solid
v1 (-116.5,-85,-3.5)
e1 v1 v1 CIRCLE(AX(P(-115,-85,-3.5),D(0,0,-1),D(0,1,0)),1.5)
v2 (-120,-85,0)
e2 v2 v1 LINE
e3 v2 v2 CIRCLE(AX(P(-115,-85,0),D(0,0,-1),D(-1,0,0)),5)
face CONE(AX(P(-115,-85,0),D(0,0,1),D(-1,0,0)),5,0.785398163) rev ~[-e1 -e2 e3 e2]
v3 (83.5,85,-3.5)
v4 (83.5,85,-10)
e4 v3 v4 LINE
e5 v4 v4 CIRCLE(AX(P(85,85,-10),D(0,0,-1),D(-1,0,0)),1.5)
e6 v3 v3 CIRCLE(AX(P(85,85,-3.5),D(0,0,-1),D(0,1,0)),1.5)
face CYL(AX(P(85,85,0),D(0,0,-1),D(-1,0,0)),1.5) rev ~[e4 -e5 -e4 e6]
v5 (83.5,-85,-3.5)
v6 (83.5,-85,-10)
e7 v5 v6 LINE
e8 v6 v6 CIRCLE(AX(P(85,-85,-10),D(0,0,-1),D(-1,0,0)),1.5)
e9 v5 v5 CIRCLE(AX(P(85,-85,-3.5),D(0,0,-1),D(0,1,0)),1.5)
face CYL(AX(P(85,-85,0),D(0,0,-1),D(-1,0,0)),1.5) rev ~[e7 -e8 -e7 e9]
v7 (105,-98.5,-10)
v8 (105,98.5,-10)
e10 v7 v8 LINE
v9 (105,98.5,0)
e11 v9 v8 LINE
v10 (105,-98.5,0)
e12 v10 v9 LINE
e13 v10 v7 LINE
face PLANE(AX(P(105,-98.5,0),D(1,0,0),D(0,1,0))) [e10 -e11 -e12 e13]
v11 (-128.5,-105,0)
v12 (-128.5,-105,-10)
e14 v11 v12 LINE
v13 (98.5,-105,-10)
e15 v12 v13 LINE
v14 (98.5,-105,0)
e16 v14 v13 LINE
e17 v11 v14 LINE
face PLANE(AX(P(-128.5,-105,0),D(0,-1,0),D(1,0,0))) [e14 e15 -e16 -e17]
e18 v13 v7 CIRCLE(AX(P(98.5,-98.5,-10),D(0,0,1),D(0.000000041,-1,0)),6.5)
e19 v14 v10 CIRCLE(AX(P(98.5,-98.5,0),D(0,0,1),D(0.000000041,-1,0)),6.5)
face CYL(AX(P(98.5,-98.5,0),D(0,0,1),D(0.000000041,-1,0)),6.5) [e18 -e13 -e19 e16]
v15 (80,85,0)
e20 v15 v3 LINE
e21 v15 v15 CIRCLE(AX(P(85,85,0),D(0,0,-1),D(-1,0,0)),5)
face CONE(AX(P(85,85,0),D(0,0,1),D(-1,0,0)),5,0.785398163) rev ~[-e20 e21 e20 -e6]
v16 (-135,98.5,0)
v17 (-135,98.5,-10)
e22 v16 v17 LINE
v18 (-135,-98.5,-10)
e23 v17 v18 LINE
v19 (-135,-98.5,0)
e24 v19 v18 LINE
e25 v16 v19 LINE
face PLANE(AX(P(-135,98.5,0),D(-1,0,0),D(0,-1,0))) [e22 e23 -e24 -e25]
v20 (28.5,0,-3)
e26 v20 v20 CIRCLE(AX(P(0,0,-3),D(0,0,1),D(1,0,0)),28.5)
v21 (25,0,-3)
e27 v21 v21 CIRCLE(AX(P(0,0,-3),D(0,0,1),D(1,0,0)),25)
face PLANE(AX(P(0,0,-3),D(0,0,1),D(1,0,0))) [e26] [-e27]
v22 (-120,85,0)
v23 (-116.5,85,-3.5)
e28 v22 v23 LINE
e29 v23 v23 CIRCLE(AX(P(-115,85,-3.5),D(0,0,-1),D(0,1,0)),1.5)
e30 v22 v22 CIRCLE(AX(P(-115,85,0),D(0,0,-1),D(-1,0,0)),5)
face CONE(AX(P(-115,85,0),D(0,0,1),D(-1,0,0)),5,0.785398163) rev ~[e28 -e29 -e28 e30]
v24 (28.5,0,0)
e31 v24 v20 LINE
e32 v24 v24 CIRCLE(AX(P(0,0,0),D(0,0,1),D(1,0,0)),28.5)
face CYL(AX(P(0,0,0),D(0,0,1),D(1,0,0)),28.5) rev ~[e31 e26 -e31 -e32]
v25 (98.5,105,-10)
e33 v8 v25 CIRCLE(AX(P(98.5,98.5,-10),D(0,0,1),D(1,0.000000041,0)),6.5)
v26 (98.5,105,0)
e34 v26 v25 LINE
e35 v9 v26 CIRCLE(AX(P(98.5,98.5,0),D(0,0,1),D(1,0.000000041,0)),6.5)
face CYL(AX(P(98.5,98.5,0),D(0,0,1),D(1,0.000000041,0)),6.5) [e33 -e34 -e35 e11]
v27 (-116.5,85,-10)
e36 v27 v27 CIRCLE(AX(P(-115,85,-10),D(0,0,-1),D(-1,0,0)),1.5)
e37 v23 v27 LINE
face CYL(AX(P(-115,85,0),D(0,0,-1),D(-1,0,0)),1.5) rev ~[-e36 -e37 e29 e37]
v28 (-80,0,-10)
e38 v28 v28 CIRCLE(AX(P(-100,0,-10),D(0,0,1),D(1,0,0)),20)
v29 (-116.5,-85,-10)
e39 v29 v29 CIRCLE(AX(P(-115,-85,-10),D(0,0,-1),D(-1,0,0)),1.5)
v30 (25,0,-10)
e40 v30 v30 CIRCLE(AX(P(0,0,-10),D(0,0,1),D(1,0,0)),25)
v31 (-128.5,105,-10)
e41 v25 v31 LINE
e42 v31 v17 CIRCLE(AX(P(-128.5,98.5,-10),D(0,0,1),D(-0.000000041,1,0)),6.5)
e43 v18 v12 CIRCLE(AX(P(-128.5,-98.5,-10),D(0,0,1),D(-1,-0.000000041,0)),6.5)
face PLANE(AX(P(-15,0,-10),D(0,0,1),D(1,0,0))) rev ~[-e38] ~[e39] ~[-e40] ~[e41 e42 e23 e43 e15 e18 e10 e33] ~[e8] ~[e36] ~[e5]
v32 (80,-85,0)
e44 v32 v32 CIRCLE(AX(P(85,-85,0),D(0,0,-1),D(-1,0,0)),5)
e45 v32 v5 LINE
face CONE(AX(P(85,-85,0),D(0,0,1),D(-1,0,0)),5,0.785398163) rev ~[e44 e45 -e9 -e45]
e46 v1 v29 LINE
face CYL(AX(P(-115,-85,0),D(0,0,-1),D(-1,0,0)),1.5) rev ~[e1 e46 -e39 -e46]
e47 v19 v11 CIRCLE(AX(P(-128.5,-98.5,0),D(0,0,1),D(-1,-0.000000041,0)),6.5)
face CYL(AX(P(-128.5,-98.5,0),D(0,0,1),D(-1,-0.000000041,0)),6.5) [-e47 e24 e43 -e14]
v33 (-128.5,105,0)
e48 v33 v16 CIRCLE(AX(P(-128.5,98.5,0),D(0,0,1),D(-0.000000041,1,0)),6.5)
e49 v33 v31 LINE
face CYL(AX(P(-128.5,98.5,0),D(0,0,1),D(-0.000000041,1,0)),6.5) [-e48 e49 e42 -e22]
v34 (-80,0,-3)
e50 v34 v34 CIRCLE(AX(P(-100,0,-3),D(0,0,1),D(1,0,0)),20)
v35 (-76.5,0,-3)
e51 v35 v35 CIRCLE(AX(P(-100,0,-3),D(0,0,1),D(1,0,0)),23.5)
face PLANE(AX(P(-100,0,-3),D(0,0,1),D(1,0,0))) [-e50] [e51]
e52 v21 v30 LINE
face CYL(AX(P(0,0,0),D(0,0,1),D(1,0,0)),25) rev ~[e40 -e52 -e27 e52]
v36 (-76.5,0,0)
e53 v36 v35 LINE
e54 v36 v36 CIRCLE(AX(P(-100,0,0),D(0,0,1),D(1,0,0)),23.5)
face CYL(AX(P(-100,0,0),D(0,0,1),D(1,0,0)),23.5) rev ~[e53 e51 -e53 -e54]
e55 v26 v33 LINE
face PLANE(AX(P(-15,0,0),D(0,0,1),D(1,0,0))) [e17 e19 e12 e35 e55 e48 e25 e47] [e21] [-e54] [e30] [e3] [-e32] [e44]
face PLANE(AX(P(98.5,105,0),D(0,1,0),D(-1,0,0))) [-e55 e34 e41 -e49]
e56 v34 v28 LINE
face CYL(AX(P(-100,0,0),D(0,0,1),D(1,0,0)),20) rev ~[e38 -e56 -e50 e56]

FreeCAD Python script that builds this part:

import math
import FreeCAD as App
import Part
import Sketcher
Q = App.Units.Quantity

doc = App.newDocument("Part")
body = doc.addObject("PartDesign::Body", "Body")

# Sketch on XY plane
sketch1 = body.newObject("Sketcher::SketchObject", "Sketch")
sketch1.AttachmentSupport = (doc.getObject("XY_Plane"), [""])
sketch1.MapMode = "FlatFace"
sketch1.addGeometry([
    Part.LineSegment(App.Vector(98.5, 105, 0), App.Vector(-128.5, 105, 0)),  # 0
    Part.ArcOfCircle(Part.Circle(App.Vector(-128.5, 98.5, 0), App.Vector(0, 0, 1), 6.5), math.radians(90.000002), math.radians(179.999998)),  # 1
    Part.LineSegment(App.Vector(-135, 98.5, 0), App.Vector(-135, -98.5, 0)),  # 2
    Part.ArcOfCircle(Part.Circle(App.Vector(-128.5, -98.5, 0), App.Vector(0, 0, 1), 6.5), math.radians(-179.999998), math.radians(-90.000002)),  # 3
    Part.LineSegment(App.Vector(-128.5, -105, 0), App.Vector(98.5, -105, 0)),  # 4
    Part.ArcOfCircle(Part.Circle(App.Vector(98.5, -98.5, 0), App.Vector(0, 0, 1), 6.5), math.radians(-89.999998), math.radians(-0.000002)),  # 5
    Part.LineSegment(App.Vector(105, -98.5, 0), App.Vector(105, 98.5, 0)),  # 6
    Part.ArcOfCircle(Part.Circle(App.Vector(98.5, 98.5, 0), App.Vector(0, 0, 1), 6.5), math.radians(0.000002), math.radians(89.999998)),  # 7
    Part.Circle(App.Vector(-100, 0, 0), App.Vector(0, 0, 1), 20),  # 8
    Part.Circle(App.Vector(0, 0, 0), App.Vector(0, 0, 1), 25),  # 9
], False)
sketch1.addConstraint([
    Sketcher.Constraint("Tangent", 0, 2, 1, 1),
    Sketcher.Constraint("Tangent", 1, 2, 2, 1),
    Sketcher.Constraint("Tangent", 2, 2, 3, 1),
    Sketcher.Constraint("Tangent", 3, 2, 4, 1),
    Sketcher.Constraint("Tangent", 4, 2, 5, 1),
    Sketcher.Constraint("Tangent", 5, 2, 6, 1),
    Sketcher.Constraint("Tangent", 6, 2, 7, 1),
    Sketcher.Constraint("Tangent", 7, 2, 0, 1),
    Sketcher.Constraint("Horizontal", 0),
    Sketcher.Constraint("Vertical", 2),
    Sketcher.Constraint("Horizontal", 4),
    Sketcher.Constraint("Vertical", 6),
    Sketcher.Constraint("Coincident", 9, 3, -1, 1),
    Sketcher.Constraint("Equal", 1, 3),
    Sketcher.Constraint("Equal", 3, 5),
    Sketcher.Constraint("Equal", 5, 7),
    Sketcher.Constraint("PointOnObject", 8, 3, -1),
    Sketcher.Constraint("Diameter", 8, Q("40 mm")),
    Sketcher.Constraint("Diameter", 9, Q("50 mm")),
    Sketcher.Constraint("Radius", 1, Q("6.5 mm")),
    Sketcher.Constraint("DistanceX", 0, 2, 0, 1, Q("227 mm")),
    Sketcher.Constraint("DistanceY", 2, 2, 2, 1, Q("197 mm")),
    Sketcher.Constraint("DistanceX", 8, 3, -1, 1, Q("100 mm")),
    Sketcher.Constraint("DistanceY", -1, 1, 0, 2, Q("105 mm")),
    Sketcher.Constraint("DistanceX", 1, 2, -1, 1, Q("135 mm")),
])
pad1 = body.newObject("PartDesign::Pad", "Pad")
pad1.Profile = sketch1
pad1.Length = 10
pad1.Reversed = True

# Sketch on XY plane
sketch2 = body.newObject("Sketcher::SketchObject", "Sketch001")
sketch2.AttachmentSupport = (doc.getObject("XY_Plane"), [""])
sketch2.MapMode = "FlatFace"
sketch2.addGeometry([
    Part.Circle(App.Vector(-100, 0, 0), App.Vector(0, 0, 1), 23.5),
    Part.Circle(App.Vector(-100, 0, 0), App.Vector(0, 0, 1), 20),
    Part.Circle(App.Vector(0, 0, 0), App.Vector(0, 0, 1), 28.5),
    Part.Circle(App.Vector(0, 0, 0), App.Vector(0, 0, 1), 25),
], False)
sketch2.addConstraint([
    Sketcher.Constraint("Coincident", 2, 3, -1, 1),
    Sketcher.Constraint("Coincident", 3, 3, -1, 1),
    Sketcher.Constraint("Coincident", 1, 3, 0, 3),
    Sketcher.Constraint("PointOnObject", 0, 3, -1),
    Sketcher.Constraint("Diameter", 0, Q("47 mm")),
    Sketcher.Constraint("Diameter", 1, Q("40 mm")),
    Sketcher.Constraint("Diameter", 2, Q("57 mm")),
    Sketcher.Constraint("Diameter", 3, Q("50 mm")),
    Sketcher.Constraint("DistanceX", 0, 3, -1, 1, Q("100 mm")),
])
pocket1 = body.newObject("PartDesign::Pocket", "Pocket")
pocket1.Profile = sketch2
pocket1.Length = 3

# Sketch on XY plane
sketch3 = body.newObject("Sketcher::SketchObject", "Sketch002")
sketch3.AttachmentSupport = (doc.getObject("XY_Plane"), [""])
sketch3.MapMode = "FlatFace"
sketch3.addGeometry([
    Part.Circle(App.Vector(-115, 85, 0), App.Vector(0, 0, 1), 1.5),
    Part.Circle(App.Vector(85, 85, 0), App.Vector(0, 0, 1), 1.5),
    Part.Circle(App.Vector(85, -85, 0), App.Vector(0, 0, 1), 1.5),
    Part.Circle(App.Vector(-115, -85, 0), App.Vector(0, 0, 1), 1.5),
], False)
sketch3.addConstraint([
    Sketcher.Constraint("Equal", 0, 1),
    Sketcher.Constraint("Equal", 1, 2),
    Sketcher.Constraint("Equal", 2, 3),
    Sketcher.Constraint("Symmetric", 1, 3, 2, 3, -1),
    Sketcher.Constraint("Symmetric", 0, 3, 3, 3, -1),
    Sketcher.Constraint("Horizontal", 0, 3, 1, 3),
    Sketcher.Constraint("Diameter", 0, Q("3 mm")),
    Sketcher.Constraint("DistanceX", 0, 3, -1, 1, Q("115 mm")),
    Sketcher.Constraint("DistanceY", -1, 1, 0, 3, Q("85 mm")),
    Sketcher.Constraint("DistanceX", -1, 1, 1, 3, Q("85 mm")),
])
doc.recompute()
hole = body.newObject("PartDesign::Hole", "Hole")
hole.Profile = sketch3
hole.ThreadType = "None"
hole.Diameter = 3
hole.DepthType = "ThroughAll"
hole.HoleCutType = "Countersink"
hole.HoleCutDiameter = 10
hole.HoleCutCountersinkAngle = 90

doc.recompute()
